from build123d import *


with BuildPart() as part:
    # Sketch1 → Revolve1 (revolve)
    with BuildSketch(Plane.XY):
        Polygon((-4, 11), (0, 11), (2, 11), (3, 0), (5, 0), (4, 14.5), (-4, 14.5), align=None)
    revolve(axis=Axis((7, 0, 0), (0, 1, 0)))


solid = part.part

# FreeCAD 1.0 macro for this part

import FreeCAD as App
import Part
import Sketcher

V = App.Vector
Q = App.Units.Quantity

doc = App.newDocument("Part")
params = doc.addObject("Spreadsheet::Sheet", "Params")
for row, (alias, value) in enumerate([
    ("sketch1_width", "6 mm"),
    ("sketch1_width2", "2 mm"),
    ("sketch1_width3", "8 mm"),
    ("sketch1_height", "3.5 mm"),
    ("sketch1_height2", "14.5 mm"),
    ("revolution_angle", "360 deg"),
], start=1):
    params.set(f"A{row}", alias)
    params.set(f"B{row}", "=" + value)
    params.setAlias(f"B{row}", alias)

body = doc.addObject("PartDesign::Body", "Body")

# Sketch on XY plane
sketch1 = body.newObject("Sketcher::SketchObject", "Sketch")
sketch1.AttachmentSupport = (doc.getObject("XY_Plane"), [""])
sketch1.MapMode = "FlatFace"
sketch1.addGeometry([
    Part.LineSegment(V(-4, 11, 0), V(2, 11, 0)),  # 0
    Part.LineSegment(V(2, 11, 0), V(3, 0, 0)),  # 1
    Part.LineSegment(V(3, 0, 0), V(5, 0, 0)),  # 2
    Part.LineSegment(V(5, 0, 0), V(4, 14.5, 0)),  # 3
    Part.LineSegment(V(4, 14.5, 0), V(-4, 14.5, 0)),  # 4
    Part.LineSegment(V(-4, 14.5, 0), V(-4, 11, 0)),  # 5
], False)
sketch1.addGeometry(Part.LineSegment(V(7, 0, 0), V(7, 14.5, 0)), True)  # axis
sketch1.addConstraint([
    Sketcher.Constraint("Coincident", 0, 2, 1, 1),
    Sketcher.Constraint("Coincident", 1, 2, 2, 1),
    Sketcher.Constraint("Coincident", 2, 2, 3, 1),
    Sketcher.Constraint("Coincident", 3, 2, 4, 1),
    Sketcher.Constraint("Coincident", 4, 2, 5, 1),
    Sketcher.Constraint("Coincident", 5, 2, 0, 1),
    Sketcher.Constraint("Horizontal", 0),
    Sketcher.Constraint("Horizontal", 2),
    Sketcher.Constraint("Horizontal", 4),
    Sketcher.Constraint("Vertical", 5),
    Sketcher.Constraint("Vertical", 6),
    Sketcher.Constraint("PointOnObject", 1, 2, -1),
    Sketcher.Constraint("PointOnObject", 6, 1, -1),
    Sketcher.Constraint("Horizontal", 4, 2, 6, 2),
    Sketcher.Constraint("DistanceX", 0, 1, 0, 2, Q("6 mm")),
    Sketcher.Constraint("DistanceX", 2, 1, 2, 2, Q("2 mm")),
    Sketcher.Constraint("DistanceX", 4, 2, 4, 1, Q("8 mm")),
    Sketcher.Constraint("DistanceY", 5, 2, 5, 1, Q("3.5 mm")),
    Sketcher.Constraint("DistanceY", 6, 1, 6, 2, Q("14.5 mm")),
    Sketcher.Constraint("DistanceX", -1, 1, 0, 2, Q("2 mm")),
    Sketcher.Constraint("DistanceX", -1, 1, 1, 2, Q("3 mm")),
    Sketcher.Constraint("DistanceX", -1, 1, 6, 1, Q("7 mm")),
])
sketch1.setExpression("Constraints[14]", "Params.sketch1_width")
sketch1.setExpression("Constraints[15]", "Params.sketch1_width2")
sketch1.setExpression("Constraints[16]", "Params.sketch1_width3")
sketch1.setExpression("Constraints[17]", "Params.sketch1_height")
sketch1.setExpression("Constraints[18]", "Params.sketch1_height2")
revolution = body.newObject("PartDesign::Revolution", "Revolution")
revolution.Profile = sketch1
revolution.ReferenceAxis = (sketch1, ["Axis0"])
revolution.setExpression("Angle", "Params.revolution_angle")

doc.recompute()
